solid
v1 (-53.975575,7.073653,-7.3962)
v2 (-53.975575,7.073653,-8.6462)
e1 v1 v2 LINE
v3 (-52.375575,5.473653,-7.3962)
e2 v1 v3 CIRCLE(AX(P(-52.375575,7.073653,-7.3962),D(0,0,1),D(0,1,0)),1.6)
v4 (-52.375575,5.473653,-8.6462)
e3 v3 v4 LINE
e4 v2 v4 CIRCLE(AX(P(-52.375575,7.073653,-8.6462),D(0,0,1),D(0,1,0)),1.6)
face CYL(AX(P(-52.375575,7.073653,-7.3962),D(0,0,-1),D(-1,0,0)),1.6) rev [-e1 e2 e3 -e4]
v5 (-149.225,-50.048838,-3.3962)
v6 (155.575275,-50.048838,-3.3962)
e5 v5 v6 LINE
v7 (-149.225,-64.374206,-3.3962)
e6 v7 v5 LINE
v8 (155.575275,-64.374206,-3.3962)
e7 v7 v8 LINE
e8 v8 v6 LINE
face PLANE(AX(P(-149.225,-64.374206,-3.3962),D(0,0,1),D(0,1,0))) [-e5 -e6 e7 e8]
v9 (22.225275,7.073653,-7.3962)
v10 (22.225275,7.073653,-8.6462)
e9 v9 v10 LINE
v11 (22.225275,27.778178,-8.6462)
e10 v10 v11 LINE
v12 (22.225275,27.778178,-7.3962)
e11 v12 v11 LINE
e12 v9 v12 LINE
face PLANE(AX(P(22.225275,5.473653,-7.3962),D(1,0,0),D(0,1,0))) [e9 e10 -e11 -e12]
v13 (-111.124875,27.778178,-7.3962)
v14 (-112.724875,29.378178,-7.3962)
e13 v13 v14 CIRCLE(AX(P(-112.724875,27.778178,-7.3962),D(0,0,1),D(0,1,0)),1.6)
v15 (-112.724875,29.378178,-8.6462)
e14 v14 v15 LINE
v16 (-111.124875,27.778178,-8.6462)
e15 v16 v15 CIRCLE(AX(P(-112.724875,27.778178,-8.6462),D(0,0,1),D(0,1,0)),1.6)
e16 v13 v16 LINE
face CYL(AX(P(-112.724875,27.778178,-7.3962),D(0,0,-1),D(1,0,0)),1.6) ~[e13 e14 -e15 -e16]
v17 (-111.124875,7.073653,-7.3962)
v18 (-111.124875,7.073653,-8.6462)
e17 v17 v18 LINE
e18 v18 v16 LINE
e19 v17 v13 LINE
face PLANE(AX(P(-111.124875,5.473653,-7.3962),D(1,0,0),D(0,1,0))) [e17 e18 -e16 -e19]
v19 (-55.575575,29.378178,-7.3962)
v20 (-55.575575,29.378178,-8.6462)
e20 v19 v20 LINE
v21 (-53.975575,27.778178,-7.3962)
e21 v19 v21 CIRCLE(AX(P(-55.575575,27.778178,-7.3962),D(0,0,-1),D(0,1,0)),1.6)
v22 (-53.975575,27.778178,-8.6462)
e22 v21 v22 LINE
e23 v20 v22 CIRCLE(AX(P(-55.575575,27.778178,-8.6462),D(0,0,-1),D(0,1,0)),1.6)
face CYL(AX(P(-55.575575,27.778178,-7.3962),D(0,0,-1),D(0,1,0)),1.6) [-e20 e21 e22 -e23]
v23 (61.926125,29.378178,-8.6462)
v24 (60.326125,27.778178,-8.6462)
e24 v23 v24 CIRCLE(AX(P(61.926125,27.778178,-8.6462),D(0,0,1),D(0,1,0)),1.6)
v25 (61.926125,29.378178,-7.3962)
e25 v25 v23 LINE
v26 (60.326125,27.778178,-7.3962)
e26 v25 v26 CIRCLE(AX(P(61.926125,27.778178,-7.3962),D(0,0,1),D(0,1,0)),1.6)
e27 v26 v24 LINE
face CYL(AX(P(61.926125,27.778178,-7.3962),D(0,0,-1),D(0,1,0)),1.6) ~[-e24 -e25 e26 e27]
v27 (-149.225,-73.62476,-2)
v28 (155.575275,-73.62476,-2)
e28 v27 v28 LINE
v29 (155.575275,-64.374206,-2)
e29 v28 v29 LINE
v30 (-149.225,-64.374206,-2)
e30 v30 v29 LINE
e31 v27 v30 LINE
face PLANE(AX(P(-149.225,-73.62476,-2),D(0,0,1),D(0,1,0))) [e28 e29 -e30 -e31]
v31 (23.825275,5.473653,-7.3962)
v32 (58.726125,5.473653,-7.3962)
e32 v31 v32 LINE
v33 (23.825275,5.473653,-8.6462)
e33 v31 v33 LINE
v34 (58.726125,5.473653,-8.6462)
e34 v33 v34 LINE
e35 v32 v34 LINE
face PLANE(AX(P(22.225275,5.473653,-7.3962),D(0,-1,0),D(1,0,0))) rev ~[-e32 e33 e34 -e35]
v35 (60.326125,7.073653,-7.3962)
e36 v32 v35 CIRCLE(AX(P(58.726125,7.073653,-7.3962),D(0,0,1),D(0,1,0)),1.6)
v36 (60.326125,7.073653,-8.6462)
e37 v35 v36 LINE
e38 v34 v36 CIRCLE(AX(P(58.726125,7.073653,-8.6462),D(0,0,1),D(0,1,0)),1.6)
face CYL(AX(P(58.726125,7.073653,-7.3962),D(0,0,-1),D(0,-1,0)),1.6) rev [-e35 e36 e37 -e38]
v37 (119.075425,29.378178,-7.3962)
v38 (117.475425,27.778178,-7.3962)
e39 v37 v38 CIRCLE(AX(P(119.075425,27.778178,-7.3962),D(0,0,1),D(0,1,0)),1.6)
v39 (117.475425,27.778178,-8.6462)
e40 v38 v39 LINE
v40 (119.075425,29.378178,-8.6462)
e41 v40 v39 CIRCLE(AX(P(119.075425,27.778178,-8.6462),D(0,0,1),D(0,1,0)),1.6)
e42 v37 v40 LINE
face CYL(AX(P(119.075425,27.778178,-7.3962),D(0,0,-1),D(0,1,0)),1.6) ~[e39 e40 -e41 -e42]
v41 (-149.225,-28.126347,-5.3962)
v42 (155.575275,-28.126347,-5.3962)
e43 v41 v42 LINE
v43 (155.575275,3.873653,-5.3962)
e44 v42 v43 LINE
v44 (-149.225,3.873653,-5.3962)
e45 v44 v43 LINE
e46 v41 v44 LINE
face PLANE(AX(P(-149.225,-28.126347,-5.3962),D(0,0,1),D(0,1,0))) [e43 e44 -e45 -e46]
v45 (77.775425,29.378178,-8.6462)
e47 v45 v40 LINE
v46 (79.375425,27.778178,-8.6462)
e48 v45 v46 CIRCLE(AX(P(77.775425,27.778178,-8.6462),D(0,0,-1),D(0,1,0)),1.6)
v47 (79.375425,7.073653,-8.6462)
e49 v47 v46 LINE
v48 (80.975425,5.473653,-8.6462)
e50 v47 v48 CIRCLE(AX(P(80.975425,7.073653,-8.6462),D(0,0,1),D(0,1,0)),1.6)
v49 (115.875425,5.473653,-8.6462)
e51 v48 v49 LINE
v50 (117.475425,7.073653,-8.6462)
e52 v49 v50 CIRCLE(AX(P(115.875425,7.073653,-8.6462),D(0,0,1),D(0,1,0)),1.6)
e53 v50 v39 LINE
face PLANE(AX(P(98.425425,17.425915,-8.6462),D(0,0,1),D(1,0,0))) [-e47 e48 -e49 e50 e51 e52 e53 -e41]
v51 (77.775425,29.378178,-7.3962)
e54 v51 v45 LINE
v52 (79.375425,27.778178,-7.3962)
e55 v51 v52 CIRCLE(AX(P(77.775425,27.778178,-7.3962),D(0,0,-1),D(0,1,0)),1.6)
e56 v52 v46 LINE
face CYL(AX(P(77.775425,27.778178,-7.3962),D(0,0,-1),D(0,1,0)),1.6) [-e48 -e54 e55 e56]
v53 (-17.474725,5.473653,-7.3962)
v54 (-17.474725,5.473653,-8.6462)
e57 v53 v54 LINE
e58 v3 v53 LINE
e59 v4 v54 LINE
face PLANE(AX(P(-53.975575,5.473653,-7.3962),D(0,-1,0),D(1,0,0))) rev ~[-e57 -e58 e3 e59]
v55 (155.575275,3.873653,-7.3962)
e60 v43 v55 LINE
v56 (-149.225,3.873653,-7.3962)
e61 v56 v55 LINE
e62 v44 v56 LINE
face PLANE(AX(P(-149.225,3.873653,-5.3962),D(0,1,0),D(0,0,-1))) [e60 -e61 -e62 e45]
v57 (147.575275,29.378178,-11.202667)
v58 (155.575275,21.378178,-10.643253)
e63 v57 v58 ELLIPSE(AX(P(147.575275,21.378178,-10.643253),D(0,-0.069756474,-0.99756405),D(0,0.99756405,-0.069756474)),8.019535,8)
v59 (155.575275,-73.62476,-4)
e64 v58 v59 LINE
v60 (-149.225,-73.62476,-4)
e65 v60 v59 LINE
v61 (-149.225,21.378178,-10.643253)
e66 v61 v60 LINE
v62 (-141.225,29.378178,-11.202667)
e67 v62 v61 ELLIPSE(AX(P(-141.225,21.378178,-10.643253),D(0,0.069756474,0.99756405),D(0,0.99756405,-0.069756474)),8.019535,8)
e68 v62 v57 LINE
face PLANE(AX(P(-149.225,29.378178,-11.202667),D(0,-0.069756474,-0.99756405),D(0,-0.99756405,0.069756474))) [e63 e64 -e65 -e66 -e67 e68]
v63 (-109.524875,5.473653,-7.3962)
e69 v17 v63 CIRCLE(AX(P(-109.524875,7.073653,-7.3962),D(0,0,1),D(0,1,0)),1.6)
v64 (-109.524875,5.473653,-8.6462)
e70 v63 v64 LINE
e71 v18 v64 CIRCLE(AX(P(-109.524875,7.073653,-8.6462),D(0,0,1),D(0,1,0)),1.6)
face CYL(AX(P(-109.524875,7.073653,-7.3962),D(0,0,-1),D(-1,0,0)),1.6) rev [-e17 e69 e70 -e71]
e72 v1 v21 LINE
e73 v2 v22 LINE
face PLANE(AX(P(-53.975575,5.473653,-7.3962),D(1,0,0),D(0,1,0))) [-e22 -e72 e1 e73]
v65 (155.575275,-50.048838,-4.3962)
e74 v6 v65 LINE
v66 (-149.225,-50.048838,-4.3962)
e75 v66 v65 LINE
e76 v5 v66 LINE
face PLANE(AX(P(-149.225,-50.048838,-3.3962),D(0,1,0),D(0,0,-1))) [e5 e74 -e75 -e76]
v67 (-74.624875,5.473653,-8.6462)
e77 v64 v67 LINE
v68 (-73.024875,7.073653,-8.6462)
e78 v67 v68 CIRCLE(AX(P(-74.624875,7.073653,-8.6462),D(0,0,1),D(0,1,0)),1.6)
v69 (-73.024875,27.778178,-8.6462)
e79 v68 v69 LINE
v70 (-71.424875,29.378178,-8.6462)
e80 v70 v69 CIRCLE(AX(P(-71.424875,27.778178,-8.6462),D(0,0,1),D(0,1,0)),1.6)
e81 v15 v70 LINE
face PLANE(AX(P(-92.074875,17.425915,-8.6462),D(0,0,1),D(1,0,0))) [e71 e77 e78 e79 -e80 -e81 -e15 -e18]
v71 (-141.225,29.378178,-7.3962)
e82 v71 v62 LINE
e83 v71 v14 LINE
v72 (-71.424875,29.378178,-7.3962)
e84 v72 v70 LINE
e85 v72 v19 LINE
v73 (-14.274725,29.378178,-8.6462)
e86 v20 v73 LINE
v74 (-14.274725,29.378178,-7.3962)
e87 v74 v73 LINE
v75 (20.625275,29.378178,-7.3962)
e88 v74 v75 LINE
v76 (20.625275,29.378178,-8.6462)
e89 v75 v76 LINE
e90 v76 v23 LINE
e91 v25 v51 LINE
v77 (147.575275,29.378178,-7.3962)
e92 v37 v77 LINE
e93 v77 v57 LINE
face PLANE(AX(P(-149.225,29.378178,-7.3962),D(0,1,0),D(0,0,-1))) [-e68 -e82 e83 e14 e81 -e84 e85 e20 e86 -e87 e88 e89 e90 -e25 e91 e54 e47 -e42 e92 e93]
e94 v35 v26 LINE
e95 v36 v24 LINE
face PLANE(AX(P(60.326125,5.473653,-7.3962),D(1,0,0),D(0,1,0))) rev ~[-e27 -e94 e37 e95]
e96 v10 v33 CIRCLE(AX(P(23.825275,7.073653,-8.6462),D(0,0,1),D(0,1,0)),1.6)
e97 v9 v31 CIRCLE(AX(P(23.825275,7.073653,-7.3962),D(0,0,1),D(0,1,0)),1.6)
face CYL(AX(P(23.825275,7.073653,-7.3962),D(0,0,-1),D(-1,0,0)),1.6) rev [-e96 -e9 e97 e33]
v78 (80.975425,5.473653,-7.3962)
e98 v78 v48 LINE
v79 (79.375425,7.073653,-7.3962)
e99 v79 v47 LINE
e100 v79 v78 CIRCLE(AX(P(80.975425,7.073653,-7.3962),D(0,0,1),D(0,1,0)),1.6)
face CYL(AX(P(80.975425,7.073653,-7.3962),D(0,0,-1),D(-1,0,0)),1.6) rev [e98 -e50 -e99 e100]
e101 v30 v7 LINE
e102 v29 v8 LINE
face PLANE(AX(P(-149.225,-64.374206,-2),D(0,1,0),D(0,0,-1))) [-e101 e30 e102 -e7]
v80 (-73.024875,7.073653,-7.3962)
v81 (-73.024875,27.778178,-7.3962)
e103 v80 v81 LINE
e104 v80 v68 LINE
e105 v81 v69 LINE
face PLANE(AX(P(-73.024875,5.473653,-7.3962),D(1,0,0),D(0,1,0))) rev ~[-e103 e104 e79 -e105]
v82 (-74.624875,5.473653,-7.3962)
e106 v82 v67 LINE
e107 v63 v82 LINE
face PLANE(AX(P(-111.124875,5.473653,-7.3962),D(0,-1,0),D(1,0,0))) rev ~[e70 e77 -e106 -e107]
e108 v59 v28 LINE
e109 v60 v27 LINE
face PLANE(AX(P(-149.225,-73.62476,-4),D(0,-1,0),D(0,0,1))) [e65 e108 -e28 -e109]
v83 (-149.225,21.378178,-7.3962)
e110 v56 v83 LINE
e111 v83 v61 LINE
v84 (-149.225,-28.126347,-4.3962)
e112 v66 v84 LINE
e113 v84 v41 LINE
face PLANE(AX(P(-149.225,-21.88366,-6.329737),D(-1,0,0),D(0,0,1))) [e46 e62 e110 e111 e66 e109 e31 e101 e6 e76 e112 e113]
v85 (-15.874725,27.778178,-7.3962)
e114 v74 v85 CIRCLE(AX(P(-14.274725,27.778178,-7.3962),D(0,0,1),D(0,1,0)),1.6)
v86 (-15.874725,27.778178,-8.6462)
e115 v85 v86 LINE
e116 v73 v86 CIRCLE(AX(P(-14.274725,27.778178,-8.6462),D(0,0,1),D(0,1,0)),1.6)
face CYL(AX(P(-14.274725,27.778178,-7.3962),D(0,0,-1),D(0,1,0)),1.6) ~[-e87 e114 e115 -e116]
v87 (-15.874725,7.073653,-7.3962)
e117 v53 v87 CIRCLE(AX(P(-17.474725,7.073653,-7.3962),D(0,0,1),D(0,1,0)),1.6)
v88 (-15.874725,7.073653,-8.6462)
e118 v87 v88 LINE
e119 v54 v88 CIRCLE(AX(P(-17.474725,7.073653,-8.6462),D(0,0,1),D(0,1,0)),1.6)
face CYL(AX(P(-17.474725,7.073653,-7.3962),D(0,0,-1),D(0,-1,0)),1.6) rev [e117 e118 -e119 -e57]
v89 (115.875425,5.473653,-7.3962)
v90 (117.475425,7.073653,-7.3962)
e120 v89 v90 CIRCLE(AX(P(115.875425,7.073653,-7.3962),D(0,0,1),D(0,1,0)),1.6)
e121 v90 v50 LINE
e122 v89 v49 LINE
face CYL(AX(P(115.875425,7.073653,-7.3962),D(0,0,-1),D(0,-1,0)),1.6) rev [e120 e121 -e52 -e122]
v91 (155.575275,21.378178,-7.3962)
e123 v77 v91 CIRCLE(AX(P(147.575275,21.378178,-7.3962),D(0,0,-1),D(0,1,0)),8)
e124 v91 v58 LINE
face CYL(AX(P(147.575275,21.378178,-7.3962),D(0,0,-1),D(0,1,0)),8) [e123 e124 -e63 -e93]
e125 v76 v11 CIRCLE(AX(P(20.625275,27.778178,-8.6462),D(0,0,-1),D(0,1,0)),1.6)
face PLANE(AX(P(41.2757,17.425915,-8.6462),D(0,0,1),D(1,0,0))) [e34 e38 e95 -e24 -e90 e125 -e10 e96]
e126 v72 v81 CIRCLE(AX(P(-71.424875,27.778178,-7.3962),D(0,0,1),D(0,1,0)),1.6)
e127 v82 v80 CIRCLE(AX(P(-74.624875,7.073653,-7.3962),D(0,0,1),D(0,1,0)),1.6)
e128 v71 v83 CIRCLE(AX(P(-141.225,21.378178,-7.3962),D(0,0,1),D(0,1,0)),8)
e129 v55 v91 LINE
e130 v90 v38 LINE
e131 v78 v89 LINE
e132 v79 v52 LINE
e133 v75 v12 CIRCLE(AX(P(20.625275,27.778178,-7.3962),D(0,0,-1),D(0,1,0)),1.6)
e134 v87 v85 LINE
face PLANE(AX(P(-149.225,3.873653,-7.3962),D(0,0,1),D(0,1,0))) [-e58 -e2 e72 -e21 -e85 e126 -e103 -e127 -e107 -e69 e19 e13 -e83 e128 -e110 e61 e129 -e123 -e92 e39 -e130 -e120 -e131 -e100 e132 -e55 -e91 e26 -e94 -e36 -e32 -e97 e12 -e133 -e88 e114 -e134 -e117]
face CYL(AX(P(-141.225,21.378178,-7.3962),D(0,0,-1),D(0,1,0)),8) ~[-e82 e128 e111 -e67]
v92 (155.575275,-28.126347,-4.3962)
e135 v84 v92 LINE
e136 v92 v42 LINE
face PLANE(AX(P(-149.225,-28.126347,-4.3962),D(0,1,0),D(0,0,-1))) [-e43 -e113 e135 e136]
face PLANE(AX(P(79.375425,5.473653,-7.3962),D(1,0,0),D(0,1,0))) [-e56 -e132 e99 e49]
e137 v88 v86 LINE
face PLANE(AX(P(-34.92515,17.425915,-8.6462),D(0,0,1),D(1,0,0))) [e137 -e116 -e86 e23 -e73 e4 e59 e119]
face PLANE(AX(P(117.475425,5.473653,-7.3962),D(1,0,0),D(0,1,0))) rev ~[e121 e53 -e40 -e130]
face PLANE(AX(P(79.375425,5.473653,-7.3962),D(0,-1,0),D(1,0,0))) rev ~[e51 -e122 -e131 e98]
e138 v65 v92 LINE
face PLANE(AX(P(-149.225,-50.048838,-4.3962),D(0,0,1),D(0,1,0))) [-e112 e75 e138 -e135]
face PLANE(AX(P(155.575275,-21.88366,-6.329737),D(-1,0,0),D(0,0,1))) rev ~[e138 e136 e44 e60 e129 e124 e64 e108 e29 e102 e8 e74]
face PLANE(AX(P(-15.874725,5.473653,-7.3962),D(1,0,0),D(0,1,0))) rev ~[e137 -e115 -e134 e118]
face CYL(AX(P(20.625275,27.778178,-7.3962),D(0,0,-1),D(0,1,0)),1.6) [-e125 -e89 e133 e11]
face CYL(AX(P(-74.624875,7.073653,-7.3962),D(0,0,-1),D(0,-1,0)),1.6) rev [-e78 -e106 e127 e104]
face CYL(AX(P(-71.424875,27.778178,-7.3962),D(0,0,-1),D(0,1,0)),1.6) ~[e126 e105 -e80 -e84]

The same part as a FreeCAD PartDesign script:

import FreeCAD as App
import Part
import Sketcher
from FreeCAD import Vector
Q = App.Units.Quantity


def edges_at(feature, points):
    """Names of the edges that pass closest to the given points."""
    edges = feature.Shape.Edges
    near = lambda p: min(range(len(edges)), key=lambda i: edges[i].distToShape(Part.Vertex(*p))[0])
    return sorted({f"Edge{near(p) + 1}" for p in points})

doc = App.newDocument("Part")
body = doc.addObject("PartDesign::Body", "Body")

# Sketch on YZ plane
sketch1 = doc.addObject("Sketcher::SketchObject", "Sketch")
body.addObject(sketch1)
sketch1.AttachmentSupport = (doc.YZ_Plane, [""])
sketch1.MapMode = "FlatFace"
sketch1.AttachmentOffset = App.Placement(Vector(0, 0, -149.225), App.Rotation())
sketch1.addGeometry([
    Part.LineSegment(Vector(-64.4, -2, 0), Vector(-64.4, -3.4, 0)),  # 0
    Part.LineSegment(Vector(-64.4, -3.4, 0), Vector(-50, -3.4, 0)),  # 1
    Part.LineSegment(Vector(-50, -3.4, 0), Vector(-50, -4.4, 0)),  # 2
    Part.LineSegment(Vector(-50, -4.4, 0), Vector(-28.1, -4.4, 0)),  # 3
    Part.LineSegment(Vector(-28.1, -4.4, 0), Vector(-28.1, -5.4, 0)),  # 4
    Part.LineSegment(Vector(-28.1, -5.4, 0), Vector(3.9, -5.4, 0)),  # 5
    Part.LineSegment(Vector(3.9, -5.4, 0), Vector(3.9, -7.4, 0)),  # 6
    Part.LineSegment(Vector(3.9, -7.4, 0), Vector(29.4, -7.4, 0)),  # 7
    Part.LineSegment(Vector(29.4, -7.4, 0), Vector(29.4, -11.2, 0)),  # 8
    Part.LineSegment(Vector(29.4, -11.2, 0), Vector(-73.6, -4, 0)),  # 9
    Part.LineSegment(Vector(-73.6, -4, 0), Vector(-73.6, -2, 0)),  # 10
    Part.LineSegment(Vector(-73.6, -2, 0), Vector(-64.4, -2, 0)),  # 11
], False)
sketch1.addConstraint([
    Sketcher.Constraint("Coincident", 0, 2, 1, 1),
    Sketcher.Constraint("Coincident", 1, 2, 2, 1),
    Sketcher.Constraint("Coincident", 2, 2, 3, 1),
    Sketcher.Constraint("Coincident", 3, 2, 4, 1),
    Sketcher.Constraint("Coincident", 4, 2, 5, 1),
    Sketcher.Constraint("Coincident", 5, 2, 6, 1),
    Sketcher.Constraint("Coincident", 6, 2, 7, 1),
    Sketcher.Constraint("Coincident", 7, 2, 8, 1),
    Sketcher.Constraint("Coincident", 8, 2, 9, 1),
    Sketcher.Constraint("Coincident", 9, 2, 10, 1),
    Sketcher.Constraint("Coincident", 10, 2, 11, 1),
    Sketcher.Constraint("Coincident", 11, 2, 0, 1),
    Sketcher.Constraint("Vertical", 0),
    Sketcher.Constraint("Horizontal", 1),
    Sketcher.Constraint("Vertical", 2),
    Sketcher.Constraint("Horizontal", 3),
    Sketcher.Constraint("Vertical", 4),
    Sketcher.Constraint("Horizontal", 5),
    Sketcher.Constraint("Vertical", 6),
    Sketcher.Constraint("Horizontal", 7),
    Sketcher.Constraint("Vertical", 8),
    Sketcher.Constraint("Vertical", 10),
    Sketcher.Constraint("Horizontal", 11),
    Sketcher.Constraint("Equal", 2, 4),
    Sketcher.Constraint("Equal", 6, 10),
    Sketcher.Constraint("DistanceX", 5, 1, 5, 2, 32.0),
    Sketcher.Constraint("DistanceY", 2, 2, 2, 1, 1.0),
    Sketcher.Constraint("DistanceY", 6, 2, 6, 1, 2.0),
    Sketcher.Constraint("Angle", 9, Q("176 deg")),
    Sketcher.Constraint("DistanceY", 9, 2, -1, 1, 4.0),
    Sketcher.Constraint("DistanceY", 0, 2, 0, 1, 1.3962),
    Sketcher.Constraint("DistanceX", 1, 1, 1, 2, 14.325369),
    Sketcher.Constraint("DistanceX", 3, 1, 3, 2, 21.922491),
    Sketcher.Constraint("Distance", 9, 103.25446),
    Sketcher.Constraint("DistanceX", 7, 1, 7, 2, 25.504525),
    Sketcher.Constraint("DistanceX", 9, 2, -1, 1, 73.62476),
])
pad1 = doc.addObject("PartDesign::Pad", "Pad")
body.addObject(pad1)
pad1.Profile = sketch1
pad1.Length = 304.800275
doc.recompute()

fillet = doc.addObject("PartDesign::Fillet", "Fillet")
body.addObject(fillet)
fillet.Base = (pad1, edges_at(pad1, [(-149.225, 29.378, -9.299), (155.575, 29.378, -9.299)]))
fillet.Radius = 8

# Sketch on XY plane
sketch2 = doc.addObject("Sketcher::SketchObject", "Sketch001")
body.addObject(sketch2)
sketch2.AttachmentSupport = (doc.XY_Plane, [""])
sketch2.MapMode = "FlatFace"
sketch2.AttachmentOffset = App.Placement(Vector(0, 0, -7.3962), App.Rotation())
sketch2.addGeometry([
    Part.LineSegment(Vector(22, 29, 0), Vector(22, 5, 0)),  # 0
    Part.LineSegment(Vector(22, 5, 0), Vector(60, 5, 0)),  # 1
    Part.LineSegment(Vector(60, 5, 0), Vector(60, 29, 0)),  # 2
    Part.LineSegment(Vector(60, 29, 0), Vector(22, 29, 0)),  # 3
    Part.LineSegment(Vector(-111, 29, 0), Vector(-111, 5, 0)),  # 4
    Part.LineSegment(Vector(-111, 5, 0), Vector(-73, 5, 0)),  # 5
    Part.LineSegment(Vector(-73, 5, 0), Vector(-73, 29, 0)),  # 6
    Part.LineSegment(Vector(-73, 29, 0), Vector(-111, 29, 0)),  # 7
    Part.LineSegment(Vector(-54, 29, 0), Vector(-54, 5, 0)),  # 8
    Part.LineSegment(Vector(-54, 5, 0), Vector(-16, 5, 0)),  # 9
    Part.LineSegment(Vector(-16, 5, 0), Vector(-16, 29, 0)),  # 10
    Part.LineSegment(Vector(-16, 29, 0), Vector(-54, 29, 0)),  # 11
    Part.LineSegment(Vector(79, 29, 0), Vector(79, 5, 0)),  # 12
    Part.LineSegment(Vector(79, 5, 0), Vector(117, 5, 0)),  # 13
    Part.LineSegment(Vector(117, 5, 0), Vector(117, 29, 0)),  # 14
    Part.LineSegment(Vector(117, 29, 0), Vector(79, 29, 0)),  # 15
], False)
sketch2.addConstraint([
    Sketcher.Constraint("Coincident", 0, 2, 1, 1),
    Sketcher.Constraint("Coincident", 1, 2, 2, 1),
    Sketcher.Constraint("Coincident", 2, 2, 3, 1),
    Sketcher.Constraint("Coincident", 3, 2, 0, 1),
    Sketcher.Constraint("Coincident", 4, 2, 5, 1),
    Sketcher.Constraint("Coincident", 5, 2, 6, 1),
    Sketcher.Constraint("Coincident", 6, 2, 7, 1),
    Sketcher.Constraint("Coincident", 7, 2, 4, 1),
    Sketcher.Constraint("Coincident", 8, 2, 9, 1),
    Sketcher.Constraint("Coincident", 9, 2, 10, 1),
    Sketcher.Constraint("Coincident", 10, 2, 11, 1),
    Sketcher.Constraint("Coincident", 11, 2, 8, 1),
    Sketcher.Constraint("Coincident", 12, 2, 13, 1),
    Sketcher.Constraint("Coincident", 13, 2, 14, 1),
    Sketcher.Constraint("Coincident", 14, 2, 15, 1),
    Sketcher.Constraint("Coincident", 15, 2, 12, 1),
    Sketcher.Constraint("Vertical", 0),
    Sketcher.Constraint("Horizontal", 1),
    Sketcher.Constraint("Vertical", 2),
    Sketcher.Constraint("Horizontal", 3),
    Sketcher.Constraint("Vertical", 4),
    Sketcher.Constraint("Horizontal", 5),
    Sketcher.Constraint("Vertical", 6),
    Sketcher.Constraint("Horizontal", 7),
    Sketcher.Constraint("Vertical", 8),
    Sketcher.Constraint("Horizontal", 9),
    Sketcher.Constraint("Vertical", 10),
    Sketcher.Constraint("Horizontal", 11),
    Sketcher.Constraint("Vertical", 12),
    Sketcher.Constraint("Horizontal", 13),
    Sketcher.Constraint("Vertical", 14),
    Sketcher.Constraint("Horizontal", 15),
    Sketcher.Constraint("Horizontal", 1, 2, 4, 2),
    Sketcher.Constraint("Horizontal", 3, 2, 6, 2),
    Sketcher.Constraint("Horizontal", 5, 2, 8, 2),
    Sketcher.Constraint("Horizontal", 7, 2, 10, 2),
    Sketcher.Constraint("Horizontal", 9, 2, 12, 2),
    Sketcher.Constraint("Horizontal", 11, 2, 14, 2),
    Sketcher.Constraint("Equal", 3, 9),
    Sketcher.Constraint("Equal", 7, 13),
    Sketcher.Constraint("DistanceX", 5, 1, 5, 2, 38.1),
    Sketcher.Constraint("DistanceX", 9, 2, 0, 2, 38.1),
    Sketcher.Constraint("DistanceX", 4, 2, 1, 2, 171.451),
    Sketcher.Constraint("DistanceX", 1, 1, 1, 2, 38.10085),
    Sketcher.Constraint("DistanceX", 1, 2, 12, 2, 19.0493),
    Sketcher.Constraint("DistanceY", 0, 2, 0, 1, 23.904525),
    Sketcher.Constraint("DistanceX", -1, 1, 0, 2, 22.225275),
    Sketcher.Constraint("DistanceY", -1, 1, 0, 2, 5.473653),
])
pocket1 = doc.addObject("PartDesign::Pocket", "Pocket")
body.addObject(pocket1)
pocket1.Profile = sketch2
pocket1.Length = 1.25
doc.recompute()

fillet2 = doc.addObject("PartDesign::Fillet", "Fillet001")
body.addObject(fillet2)
fillet2.Base = (pocket1, edges_at(pocket1, [
    (-111.125, 5.474, -8.021),
    (-73.025, 5.474, -8.021),
    (-53.976, 5.474, -8.021),
    (-15.875, 5.474, -8.021),
    (60.326, 5.474, -8.021),
    (22.225, 5.474, -8.021),
    (117.475, 5.474, -8.021),
    (79.375, 5.474, -8.021),
]))
fillet2.Radius = 1.6
doc.recompute()

fillet3 = doc.addObject("PartDesign::Fillet", "Fillet002")
body.addObject(fillet3)
fillet3.Base = (fillet2, edges_at(fillet2, [
    (-111.125, 29.378, -8.021),
    (-73.025, 29.378, -8.021),
    (-53.976, 29.378, -8.021),
    (-15.875, 29.378, -8.021),
    (22.225, 29.378, -8.021),
    (60.326, 29.378, -8.021),
    (79.375, 29.378, -8.021),
    (117.475, 29.378, -8.021),
]))
fillet3.Radius = 1.6

doc.recompute()
